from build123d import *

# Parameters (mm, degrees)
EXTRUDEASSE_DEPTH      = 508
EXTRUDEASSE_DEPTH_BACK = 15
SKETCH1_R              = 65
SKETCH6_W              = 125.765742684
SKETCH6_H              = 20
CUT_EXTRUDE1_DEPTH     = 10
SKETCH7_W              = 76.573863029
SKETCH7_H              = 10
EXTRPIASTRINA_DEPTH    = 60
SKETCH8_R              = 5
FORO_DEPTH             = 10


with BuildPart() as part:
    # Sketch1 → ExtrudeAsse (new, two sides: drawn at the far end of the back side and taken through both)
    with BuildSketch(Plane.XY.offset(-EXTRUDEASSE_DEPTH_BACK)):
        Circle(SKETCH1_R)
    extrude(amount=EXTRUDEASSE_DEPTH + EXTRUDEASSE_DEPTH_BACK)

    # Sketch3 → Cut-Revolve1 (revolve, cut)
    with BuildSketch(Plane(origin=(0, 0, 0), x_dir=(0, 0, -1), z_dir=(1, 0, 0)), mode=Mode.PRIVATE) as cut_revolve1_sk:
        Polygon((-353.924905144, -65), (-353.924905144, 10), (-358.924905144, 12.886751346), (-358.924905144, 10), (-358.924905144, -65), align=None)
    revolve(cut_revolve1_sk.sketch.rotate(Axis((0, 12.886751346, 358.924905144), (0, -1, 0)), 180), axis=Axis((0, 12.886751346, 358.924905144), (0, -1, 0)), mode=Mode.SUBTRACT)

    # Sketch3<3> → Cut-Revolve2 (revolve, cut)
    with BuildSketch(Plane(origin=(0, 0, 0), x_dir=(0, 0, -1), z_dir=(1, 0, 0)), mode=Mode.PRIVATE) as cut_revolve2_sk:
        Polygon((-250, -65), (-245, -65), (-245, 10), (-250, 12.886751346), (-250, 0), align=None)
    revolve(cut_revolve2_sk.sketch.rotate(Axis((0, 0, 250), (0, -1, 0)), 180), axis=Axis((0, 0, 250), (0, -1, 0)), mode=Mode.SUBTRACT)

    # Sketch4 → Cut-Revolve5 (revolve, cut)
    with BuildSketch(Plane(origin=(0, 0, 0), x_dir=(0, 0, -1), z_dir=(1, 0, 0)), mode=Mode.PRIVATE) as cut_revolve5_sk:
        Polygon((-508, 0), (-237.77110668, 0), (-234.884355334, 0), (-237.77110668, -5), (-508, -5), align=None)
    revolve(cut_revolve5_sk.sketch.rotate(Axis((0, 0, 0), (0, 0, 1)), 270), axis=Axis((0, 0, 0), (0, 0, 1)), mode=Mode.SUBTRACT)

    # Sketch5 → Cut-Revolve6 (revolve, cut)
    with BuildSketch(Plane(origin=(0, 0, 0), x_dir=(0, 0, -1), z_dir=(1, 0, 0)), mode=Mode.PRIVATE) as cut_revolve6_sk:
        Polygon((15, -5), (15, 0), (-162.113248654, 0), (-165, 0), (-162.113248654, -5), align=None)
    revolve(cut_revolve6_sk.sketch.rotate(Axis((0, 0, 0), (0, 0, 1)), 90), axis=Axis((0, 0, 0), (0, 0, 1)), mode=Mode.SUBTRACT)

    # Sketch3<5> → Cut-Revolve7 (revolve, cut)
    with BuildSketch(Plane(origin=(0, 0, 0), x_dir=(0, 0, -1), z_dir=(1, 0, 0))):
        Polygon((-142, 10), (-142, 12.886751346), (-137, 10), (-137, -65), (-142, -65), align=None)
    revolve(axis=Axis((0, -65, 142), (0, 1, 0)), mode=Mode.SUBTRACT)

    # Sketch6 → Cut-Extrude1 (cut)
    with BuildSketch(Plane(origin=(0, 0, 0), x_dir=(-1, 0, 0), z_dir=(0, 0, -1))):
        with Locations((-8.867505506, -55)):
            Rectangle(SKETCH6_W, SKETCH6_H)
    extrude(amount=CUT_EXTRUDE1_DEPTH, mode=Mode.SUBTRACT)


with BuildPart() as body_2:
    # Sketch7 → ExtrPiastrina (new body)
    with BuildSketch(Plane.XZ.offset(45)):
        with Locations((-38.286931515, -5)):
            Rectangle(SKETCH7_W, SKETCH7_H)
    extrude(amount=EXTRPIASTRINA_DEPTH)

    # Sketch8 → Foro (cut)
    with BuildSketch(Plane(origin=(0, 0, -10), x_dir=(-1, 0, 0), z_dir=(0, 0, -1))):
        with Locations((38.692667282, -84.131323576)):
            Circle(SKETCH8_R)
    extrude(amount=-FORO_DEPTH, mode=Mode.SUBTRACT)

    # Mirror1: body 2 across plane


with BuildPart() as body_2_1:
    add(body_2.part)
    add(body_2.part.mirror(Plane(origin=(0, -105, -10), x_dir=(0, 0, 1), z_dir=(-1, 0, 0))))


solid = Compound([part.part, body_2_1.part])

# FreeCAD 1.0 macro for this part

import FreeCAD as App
import Part
import Sketcher
Q = App.Units.Quantity

doc = App.newDocument("Part")
body = doc.addObject("PartDesign::Body", "Body")

# Sketch on XY plane
sketch1 = body.newObject("Sketcher::SketchObject", "Sketch")
sketch1.AttachmentSupport = (doc.getObject("XY_Plane"), [""])
sketch1.MapMode = "FlatFace"
sketch1.addGeometry(Part.Circle(App.Vector(0, 0, 0), App.Vector(0, 0, 1), 65), False)
sketch1.addConstraint([
    Sketcher.Constraint("Coincident", 0, 3, -1, 1),
    Sketcher.Constraint("Diameter", 0, 130.0),
])
pad1 = body.newObject("PartDesign::Pad", "Pad")
pad1.Profile = sketch1
pad1.Type = "TwoLengths"
pad1.Length = 508
pad1.Length2 = 15

# Sketch on YZ plane
sketch2 = body.newObject("Sketcher::SketchObject", "Sketch001")
sketch2.AttachmentSupport = (doc.getObject("YZ_Plane"), [""])
sketch2.MapMode = "FlatFace"
sketch2.addGeometry([
    Part.LineSegment(App.Vector(-65, 354, 0), App.Vector(10, 354, 0)),
    Part.LineSegment(App.Vector(10, 354, 0), App.Vector(13, 359, 0)),
    Part.LineSegment(App.Vector(13, 359, 0), App.Vector(-65, 359, 0)),
    Part.LineSegment(App.Vector(-65, 359, 0), App.Vector(-65, 354, 0)),
], False)
sketch2.addGeometry(Part.LineSegment(App.Vector(13, 359, 0), App.Vector(-65, 359, 0)), True)  # axis
sketch2.addConstraint([
    Sketcher.Constraint("Coincident", 0, 2, 1, 1),
    Sketcher.Constraint("Coincident", 1, 2, 2, 1),
    Sketcher.Constraint("Coincident", 2, 2, 3, 1),
    Sketcher.Constraint("Coincident", 3, 2, 0, 1),
    Sketcher.Constraint("Horizontal", 0),
    Sketcher.Constraint("Horizontal", 2),
    Sketcher.Constraint("Vertical", 3),
    Sketcher.Constraint("Horizontal", 4),
    Sketcher.Constraint("Coincident", 4, 1, 1, 2),
    Sketcher.Constraint("Vertical", 3, 2, 4, 2),
    Sketcher.Constraint("DistanceX", 0, 1, 0, 2, 75.0),
    Sketcher.Constraint("DistanceY", 3, 2, 3, 1, 5.0),
    Sketcher.Constraint("Angle", 1, Q("60 deg")),
    Sketcher.Constraint("DistanceX", -1, 1, 0, 2, 10.0),
    Sketcher.Constraint("DistanceY", -1, 1, 0, 2, 353.924905),
])
groove = body.newObject("PartDesign::Groove", "Groove")
groove.Profile = sketch2
groove.ReferenceAxis = (sketch2, ["Axis0"])
groove.Angle = 360

# Sketch on YZ plane
sketch3 = body.newObject("Sketcher::SketchObject", "Sketch002")
sketch3.AttachmentSupport = (doc.getObject("YZ_Plane"), [""])
sketch3.MapMode = "FlatFace"
sketch3.addGeometry([
    Part.LineSegment(App.Vector(-65, 250, 0), App.Vector(-65, 245, 0)),
    Part.LineSegment(App.Vector(-65, 245, 0), App.Vector(10, 245, 0)),
    Part.LineSegment(App.Vector(10, 245, 0), App.Vector(13, 250, 0)),
    Part.LineSegment(App.Vector(13, 250, 0), App.Vector(-65, 250, 0)),
], False)
sketch3.addGeometry(Part.LineSegment(App.Vector(13, 250, 0), App.Vector(-65, 250, 0)), True)  # axis
sketch3.addConstraint([
    Sketcher.Constraint("Coincident", 0, 2, 1, 1),
    Sketcher.Constraint("Coincident", 1, 2, 2, 1),
    Sketcher.Constraint("Coincident", 2, 2, 3, 1),
    Sketcher.Constraint("Coincident", 3, 2, 0, 1),
    Sketcher.Constraint("Vertical", 0),
    Sketcher.Constraint("Horizontal", 1),
    Sketcher.Constraint("Horizontal", 3),
    Sketcher.Constraint("Horizontal", 4),
    Sketcher.Constraint("Coincident", 4, 1, 2, 2),
    Sketcher.Constraint("Vertical", 0, 2, 4, 2),
    Sketcher.Constraint("DistanceX", 1, 1, 1, 2, 75.0),
    Sketcher.Constraint("DistanceY", 0, 2, 0, 1, 5.0),
    Sketcher.Constraint("Angle", 2, Q("60 deg")),
    Sketcher.Constraint("DistanceX", 0, 2, -1, 1, 65.0),
    Sketcher.Constraint("DistanceY", -1, 1, 0, 2, 245.0),
])
groove2 = body.newObject("PartDesign::Groove", "Groove001")
groove2.Profile = sketch3
groove2.ReferenceAxis = (sketch3, ["Axis0"])
groove2.Angle = 360

# Sketch on YZ plane
sketch4 = body.newObject("Sketcher::SketchObject", "Sketch003")
sketch4.AttachmentSupport = (doc.getObject("YZ_Plane"), [""])
sketch4.MapMode = "FlatFace"
sketch4.addGeometry([
    Part.LineSegment(App.Vector(0, 235, 0), App.Vector(0, 508, 0)),
    Part.LineSegment(App.Vector(0, 508, 0), App.Vector(-5, 508, 0)),
    Part.LineSegment(App.Vector(-5, 508, 0), App.Vector(-5, 238, 0)),
    Part.LineSegment(App.Vector(-5, 238, 0), App.Vector(0, 235, 0)),
], False)
sketch4.addConstraint([
    Sketcher.Constraint("Coincident", 0, 2, 1, 1),
    Sketcher.Constraint("Coincident", 1, 2, 2, 1),
    Sketcher.Constraint("Coincident", 2, 2, 3, 1),
    Sketcher.Constraint("Coincident", 3, 2, 0, 1),
    Sketcher.Constraint("Vertical", 0),
    Sketcher.Constraint("Horizontal", 1),
    Sketcher.Constraint("Vertical", 2),
    Sketcher.Constraint("PointOnObject", 0, 2, -2),
    Sketcher.Constraint("DistanceX", 1, 2, 1, 1, 5.0),
    Sketcher.Constraint("Angle", 3, Q("-30 deg")),
    Sketcher.Constraint("DistanceY", -1, 1, 0, 2, 508.0),
    Sketcher.Constraint("DistanceY", 0, 1, 0, 2, 273.115645),
])
groove3 = body.newObject("PartDesign::Groove", "Groove002")
groove3.Profile = sketch4
groove3.ReferenceAxis = (sketch4, ["V_Axis"])
groove3.Angle = 360

# Sketch on YZ plane
sketch5 = body.newObject("Sketcher::SketchObject", "Sketch004")
sketch5.AttachmentSupport = (doc.getObject("YZ_Plane"), [""])
sketch5.MapMode = "FlatFace"
sketch5.addGeometry([
    Part.LineSegment(App.Vector(-5, -15, 0), App.Vector(0, -15, 0)),
    Part.LineSegment(App.Vector(0, -15, 0), App.Vector(0, 165, 0)),
    Part.LineSegment(App.Vector(0, 165, 0), App.Vector(-5, 162, 0)),
    Part.LineSegment(App.Vector(-5, 162, 0), App.Vector(-5, -15, 0)),
], False)
sketch5.addConstraint([
    Sketcher.Constraint("Coincident", 0, 2, 1, 1),
    Sketcher.Constraint("Coincident", 1, 2, 2, 1),
    Sketcher.Constraint("Coincident", 2, 2, 3, 1),
    Sketcher.Constraint("Coincident", 3, 2, 0, 1),
    Sketcher.Constraint("Horizontal", 0),
    Sketcher.Constraint("Vertical", 1),
    Sketcher.Constraint("Vertical", 3),
    Sketcher.Constraint("PointOnObject", 0, 2, -2),
    Sketcher.Constraint("DistanceX", 0, 1, 0, 2, 5.0),
    Sketcher.Constraint("DistanceY", 1, 1, 1, 2, 180.0),
    Sketcher.Constraint("Angle", 2, Q("-150 deg")),
    Sketcher.Constraint("DistanceY", 0, 2, -1, 1, 15.0),
])
groove4 = body.newObject("PartDesign::Groove", "Groove003")
groove4.Profile = sketch5
groove4.ReferenceAxis = (sketch5, ["V_Axis"])
groove4.Angle = 360

# Sketch on YZ plane
sketch6 = body.newObject("Sketcher::SketchObject", "Sketch005")
sketch6.AttachmentSupport = (doc.getObject("YZ_Plane"), [""])
sketch6.MapMode = "FlatFace"
sketch6.addGeometry([
    Part.LineSegment(App.Vector(13, 142, 0), App.Vector(-65, 142, 0)),
    Part.LineSegment(App.Vector(-65, 142, 0), App.Vector(-65, 137, 0)),
    Part.LineSegment(App.Vector(-65, 137, 0), App.Vector(10, 137, 0)),
    Part.LineSegment(App.Vector(10, 137, 0), App.Vector(13, 142, 0)),
], False)
sketch6.addGeometry(Part.LineSegment(App.Vector(-65, 142, 0), App.Vector(13, 142, 0)), True)  # axis
sketch6.addConstraint([
    Sketcher.Constraint("Coincident", 0, 2, 1, 1),
    Sketcher.Constraint("Coincident", 1, 2, 2, 1),
    Sketcher.Constraint("Coincident", 2, 2, 3, 1),
    Sketcher.Constraint("Coincident", 3, 2, 0, 1),
    Sketcher.Constraint("Horizontal", 0),
    Sketcher.Constraint("Vertical", 1),
    Sketcher.Constraint("Horizontal", 2),
    Sketcher.Constraint("Horizontal", 4),
    Sketcher.Constraint("Coincident", 4, 1, 0, 2),
    Sketcher.Constraint("Equal", 0, 4),
    Sketcher.Constraint("DistanceX", 2, 1, 2, 2, 75.0),
    Sketcher.Constraint("DistanceY", 1, 2, 1, 1, 5.0),
    Sketcher.Constraint("Angle", 3, Q("60 deg")),
    Sketcher.Constraint("DistanceX", 0, 2, -1, 1, 65.0),
    Sketcher.Constraint("DistanceY", -1, 1, 0, 2, 142.0),
])
groove5 = body.newObject("PartDesign::Groove", "Groove004")
groove5.Profile = sketch6
groove5.ReferenceAxis = (sketch6, ["Axis0"])
groove5.Angle = 360

# Sketch on XY plane
sketch7 = body.newObject("Sketcher::SketchObject", "Sketch006")
sketch7.AttachmentSupport = (doc.getObject("XY_Plane"), [""])
sketch7.MapMode = "FlatFace"
sketch7.addGeometry([
    Part.LineSegment(App.Vector(72, -45, 0), App.Vector(72, -65, 0)),
    Part.LineSegment(App.Vector(72, -65, 0), App.Vector(-54, -65, 0)),
    Part.LineSegment(App.Vector(-54, -65, 0), App.Vector(-54, -45, 0)),
    Part.LineSegment(App.Vector(-54, -45, 0), App.Vector(72, -45, 0)),
], False)
sketch7.addConstraint([
    Sketcher.Constraint("Coincident", 0, 2, 1, 1),
    Sketcher.Constraint("Coincident", 1, 2, 2, 1),
    Sketcher.Constraint("Coincident", 2, 2, 3, 1),
    Sketcher.Constraint("Coincident", 3, 2, 0, 1),
    Sketcher.Constraint("Vertical", 0),
    Sketcher.Constraint("Horizontal", 1),
    Sketcher.Constraint("Vertical", 2),
    Sketcher.Constraint("Horizontal", 3),
    Sketcher.Constraint("DistanceY", 0, 2, 0, 1, 20.0),
    Sketcher.Constraint("DistanceY", 0, 2, -1, 1, 65.0),
    Sketcher.Constraint("DistanceX", 1, 2, 1, 1, 125.765743),
    Sketcher.Constraint("DistanceX", -1, 1, 0, 2, 71.750377),
])
pocket1 = body.newObject("PartDesign::Pocket", "Pocket")
pocket1.Profile = sketch7
pocket1.Length = 10
body2 = doc.addObject("PartDesign::Body", "Body001")

# Sketch on XZ plane
sketch8 = body2.newObject("Sketcher::SketchObject", "Sketch007")
sketch8.AttachmentSupport = (doc.getObject("XZ_Plane001"), [""])
sketch8.MapMode = "FlatFace"
sketch8.AttachmentOffset = App.Placement(App.Vector(0, 0, 45), App.Rotation())
sketch8.addGeometry([
    Part.LineSegment(App.Vector(-77, 0, 0), App.Vector(-77, -10, 0)),
    Part.LineSegment(App.Vector(-77, -10, 0), App.Vector(0, -10, 0)),
    Part.LineSegment(App.Vector(0, -10, 0), App.Vector(0, 0, 0)),
    Part.LineSegment(App.Vector(0, 0, 0), App.Vector(-77, 0, 0)),
], False)
sketch8.addConstraint([
    Sketcher.Constraint("Coincident", 0, 2, 1, 1),
    Sketcher.Constraint("Coincident", 1, 2, 2, 1),
    Sketcher.Constraint("Coincident", 2, 2, 3, 1),
    Sketcher.Constraint("Coincident", 3, 2, 0, 1),
    Sketcher.Constraint("Vertical", 0),
    Sketcher.Constraint("Horizontal", 1),
    Sketcher.Constraint("Vertical", 2),
    Sketcher.Constraint("Horizontal", 3),
    Sketcher.Constraint("Coincident", 2, 2, -1, 1),
    Sketcher.Constraint("DistanceY", 0, 2, 0, 1, 10.0),
    Sketcher.Constraint("DistanceX", 1, 1, 1, 2, 76.573863),
])
pad2 = body2.newObject("PartDesign::Pad", "Pad001")
pad2.Profile = sketch8
pad2.Length = 60

# Sketch on XY plane
sketch9 = body2.newObject("Sketcher::SketchObject", "Sketch008")
sketch9.AttachmentSupport = (doc.getObject("XY_Plane001"), [""])
sketch9.MapMode = "FlatFace"
sketch9.AttachmentOffset = App.Placement(App.Vector(0, 0, -10), App.Rotation())
sketch9.addGeometry(Part.Circle(App.Vector(-39, -84, 0), App.Vector(0, 0, 1), 5), False)
sketch9.addConstraint([
    Sketcher.Constraint("Diameter", 0, 10.0),
    Sketcher.Constraint("DistanceX", 0, 3, -1, 1, 38.692667),
    Sketcher.Constraint("DistanceY", 0, 3, -1, 1, 84.131324),
])
pocket2 = body2.newObject("PartDesign::Pocket", "Pocket001")
pocket2.Profile = sketch9
pocket2.Length = 10
pocket2.Reversed = True
body3 = doc.addObject("PartDesign::Body", "Body002")
doc.recompute()

body3.BaseFeature = body2
doc.recompute()

mirroring = doc.addObject("Part::Mirroring", "Mirroring")
mirroring.Source = body2
mirroring.Base = App.Vector(0, -105, -10)
mirroring.Normal = App.Vector(-1, 0, 0)
body4 = doc.addObject("PartDesign::Body", "Body003")
body4.BaseFeature = mirroring
boolean = body3.newObject("PartDesign::Boolean", "Boolean")
boolean.Type = "Fuse"
boolean.addObjects([body4])
doc.recompute()
mirroring.Visibility = False

doc.recompute()
